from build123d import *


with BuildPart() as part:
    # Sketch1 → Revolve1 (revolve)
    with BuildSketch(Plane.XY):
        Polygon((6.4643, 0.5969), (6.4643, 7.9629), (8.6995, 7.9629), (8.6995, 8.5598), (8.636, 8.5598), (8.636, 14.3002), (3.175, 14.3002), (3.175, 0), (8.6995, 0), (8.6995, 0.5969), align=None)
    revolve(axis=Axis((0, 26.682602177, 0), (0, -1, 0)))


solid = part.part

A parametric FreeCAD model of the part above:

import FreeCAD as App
import Part
import Sketcher

V = App.Vector
Q = App.Units.Quantity


def add_polygon(sketch, points):
    """Adds a closed chain of lines whose ends are joined by coincident constraints."""
    first, n = sketch.GeometryCount, len(points)
    for a, b in zip(points, points[1:] + points[:1]):
        sketch.addGeometry(Part.LineSegment(App.Vector(*a, 0), App.Vector(*b, 0)), False)
    for i in range(n):
        sketch.addConstraint(Sketcher.Constraint("Coincident", first + i, 2, first + (i + 1) % n, 1))

doc = App.newDocument("Part")
body = doc.addObject("PartDesign::Body", "Body")

# Sketch on XY plane
sketch1 = doc.addObject("Sketcher::SketchObject", "Sketch")
body.addObject(sketch1)
sketch1.AttachmentSupport = (doc.XY_Plane, [""])
sketch1.MapMode = "FlatFace"
add_polygon(sketch1, [(6.46, 0.6), (6.46, 7.96), (8.7, 7.96), (8.7, 8.56), (8.64, 8.56), (8.64, 14.3), (3.17, 14.3), (3.17, 0), (8.7, 0), (8.7, 0.6)])  # lines 0-9
sketch1.addConstraint([
    Sketcher.Constraint("Vertical", 0),
    Sketcher.Constraint("Horizontal", 1),
    Sketcher.Constraint("Vertical", 2),
    Sketcher.Constraint("Horizontal", 3),
    Sketcher.Constraint("Vertical", 4),
    Sketcher.Constraint("Horizontal", 5),
    Sketcher.Constraint("Vertical", 6),
    Sketcher.Constraint("Horizontal", 7),
    Sketcher.Constraint("Vertical", 8),
    Sketcher.Constraint("Horizontal", 9),
    Sketcher.Constraint("PointOnObject", 6, 2, -1),
    Sketcher.Constraint("Vertical", 2, 2, 7, 2),
    Sketcher.Constraint("Equal", 2, 8),
    Sketcher.Constraint("DistanceY", 0, 1, 0, 2, Q("0.29 in")),
    Sketcher.Constraint("DistanceX", 1, 1, 1, 2, Q("0.088 in")),
    Sketcher.Constraint("DistanceX", 5, 2, 5, 1, Q("0.215 in")),
    Sketcher.Constraint("DistanceY", 4, 1, 4, 2, Q("0.226 in")),
    Sketcher.Constraint("DistanceY", 6, 2, 6, 1, Q("0.563 in")),
    Sketcher.Constraint("DistanceX", -1, 1, 3, 2, Q("0.34 in")),
    Sketcher.Constraint("DistanceX", 3, 2, 3, 1, Q("0.0025 in")),
])
revolution = doc.addObject("PartDesign::Revolution", "Revolution")
body.addObject(revolution)
revolution.Profile = sketch1
revolution.ReferenceAxis = (sketch1, ["V_Axis"])
revolution.Angle = 360

doc.recompute()
